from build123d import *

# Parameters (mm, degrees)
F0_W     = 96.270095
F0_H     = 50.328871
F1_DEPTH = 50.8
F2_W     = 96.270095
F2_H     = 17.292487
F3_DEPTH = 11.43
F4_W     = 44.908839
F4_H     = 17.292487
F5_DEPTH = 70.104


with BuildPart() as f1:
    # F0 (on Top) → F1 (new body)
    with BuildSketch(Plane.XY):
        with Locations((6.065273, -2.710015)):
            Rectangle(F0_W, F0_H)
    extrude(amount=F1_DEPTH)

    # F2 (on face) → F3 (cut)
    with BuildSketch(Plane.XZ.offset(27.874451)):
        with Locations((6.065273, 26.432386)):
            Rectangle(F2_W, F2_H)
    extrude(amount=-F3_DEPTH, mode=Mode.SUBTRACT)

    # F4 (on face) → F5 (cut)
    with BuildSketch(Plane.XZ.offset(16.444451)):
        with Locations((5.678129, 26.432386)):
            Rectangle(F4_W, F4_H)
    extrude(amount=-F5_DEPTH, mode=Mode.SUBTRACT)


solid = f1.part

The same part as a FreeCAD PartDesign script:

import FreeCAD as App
import Part
import Sketcher
from FreeCAD import Vector


def add_polygon(sketch, points):
    """Adds a closed chain of lines whose ends are joined by coincident constraints."""
    first, n = sketch.GeometryCount, len(points)
    for a, b in zip(points, points[1:] + points[:1]):
        sketch.addGeometry(Part.LineSegment(App.Vector(*a, 0), App.Vector(*b, 0)), False)
    for i in range(n):
        sketch.addConstraint(Sketcher.Constraint("Coincident", first + i, 2, first + (i + 1) % n, 1))

doc = App.newDocument("Part")
params = doc.addObject("Spreadsheet::Sheet", "Params")
for row, (alias, value) in enumerate([
    ("pad1_length", "2 in"),
    ("pocket1_length", "0.45 in"),
    ("pocket2_length", "2.76 in"),
], start=1):
    params.set(f"A{row}", alias)
    params.set(f"B{row}", "=" + value)
    params.setAlias(f"B{row}", alias)

body = doc.addObject("PartDesign::Body", "Body")

sketch1 = body.newObject("Sketcher::SketchObject", "Sketch")
sketch1.AttachmentSupport = (doc.getObject("XY_Plane"), [""])
sketch1.MapMode = "FlatFace"
add_polygon(sketch1, [(-42.069775, 22.454421), (-42.069775, -27.87445), (54.20032, -27.87445), (54.20032, 22.454421)])
sketch1.addConstraint(Sketcher.Constraint("Vertical", 0))
sketch1.addConstraint(Sketcher.Constraint("Horizontal", 1))
sketch1.addConstraint(Sketcher.Constraint("Vertical", 2))
sketch1.addConstraint(Sketcher.Constraint("Horizontal", 3))
sketch1.addConstraint(Sketcher.Constraint("DistanceY", 0, 2, 0, 1, 50.328871))
sketch1.addConstraint(Sketcher.Constraint("DistanceX", 1, 1, 1, 2, 96.270095))
sketch1.addConstraint(Sketcher.Constraint("DistanceY", 0, 2, -1, 1, 27.87445))
sketch1.addConstraint(Sketcher.Constraint("DistanceX", -1, 1, 1, 2, 54.20032))
pad1 = body.newObject("PartDesign::Pad", "Pad")
pad1.Profile = sketch1
pad1.setExpression("Length", "Params.pad1_length")

sketch2 = body.newObject("Sketcher::SketchObject", "Sketch001")
sketch2.AttachmentSupport = (doc.getObject("XZ_Plane"), [""])
sketch2.MapMode = "FlatFace"
sketch2.AttachmentOffset = App.Placement(Vector(0, 0, 27.874451), App.Rotation())
add_polygon(sketch2, [(-42.069775, 35.078629), (-42.069775, 17.786143), (54.20032, 17.786143), (54.20032, 35.078629)])
sketch2.addConstraint(Sketcher.Constraint("Vertical", 0))
sketch2.addConstraint(Sketcher.Constraint("Horizontal", 1))
sketch2.addConstraint(Sketcher.Constraint("Vertical", 2))
sketch2.addConstraint(Sketcher.Constraint("Horizontal", 3))
sketch2.addConstraint(Sketcher.Constraint("DistanceX", 1, 1, 1, 2, 96.270095))
sketch2.addConstraint(Sketcher.Constraint("DistanceY", 0, 2, 0, 1, 17.292487))
sketch2.addConstraint(Sketcher.Constraint("DistanceX", -1, 1, 1, 2, 54.20032))
sketch2.addConstraint(Sketcher.Constraint("DistanceY", -1, 1, 2, 2, 35.078629))
pocket1 = body.newObject("PartDesign::Pocket", "Pocket")
pocket1.Profile = sketch2
pocket1.setExpression("Length", "Params.pocket1_length")

sketch3 = body.newObject("Sketcher::SketchObject", "Sketch002")
sketch3.AttachmentSupport = (doc.getObject("XZ_Plane"), [""])
sketch3.MapMode = "FlatFace"
sketch3.AttachmentOffset = App.Placement(Vector(0, 0, 16.444451), App.Rotation())
add_polygon(sketch3, [(-16.776291, 35.078629), (-16.776291, 17.786143), (28.132548, 17.786143), (28.132548, 35.078629)])
sketch3.addConstraint(Sketcher.Constraint("Vertical", 0))
sketch3.addConstraint(Sketcher.Constraint("Horizontal", 1))
sketch3.addConstraint(Sketcher.Constraint("Vertical", 2))
sketch3.addConstraint(Sketcher.Constraint("Horizontal", 3))
sketch3.addConstraint(Sketcher.Constraint("DistanceX", 1, 1, 1, 2, 44.908839))
sketch3.addConstraint(Sketcher.Constraint("DistanceY", 0, 2, 0, 1, 17.292487))
sketch3.addConstraint(Sketcher.Constraint("DistanceX", 0, 2, -1, 1, 16.776291))
sketch3.addConstraint(Sketcher.Constraint("DistanceY", -1, 1, 2, 2, 35.078629))
pocket2 = body.newObject("PartDesign::Pocket", "Pocket001")
pocket2.Profile = sketch3
pocket2.setExpression("Length", "Params.pocket2_length")

doc.recompute()
